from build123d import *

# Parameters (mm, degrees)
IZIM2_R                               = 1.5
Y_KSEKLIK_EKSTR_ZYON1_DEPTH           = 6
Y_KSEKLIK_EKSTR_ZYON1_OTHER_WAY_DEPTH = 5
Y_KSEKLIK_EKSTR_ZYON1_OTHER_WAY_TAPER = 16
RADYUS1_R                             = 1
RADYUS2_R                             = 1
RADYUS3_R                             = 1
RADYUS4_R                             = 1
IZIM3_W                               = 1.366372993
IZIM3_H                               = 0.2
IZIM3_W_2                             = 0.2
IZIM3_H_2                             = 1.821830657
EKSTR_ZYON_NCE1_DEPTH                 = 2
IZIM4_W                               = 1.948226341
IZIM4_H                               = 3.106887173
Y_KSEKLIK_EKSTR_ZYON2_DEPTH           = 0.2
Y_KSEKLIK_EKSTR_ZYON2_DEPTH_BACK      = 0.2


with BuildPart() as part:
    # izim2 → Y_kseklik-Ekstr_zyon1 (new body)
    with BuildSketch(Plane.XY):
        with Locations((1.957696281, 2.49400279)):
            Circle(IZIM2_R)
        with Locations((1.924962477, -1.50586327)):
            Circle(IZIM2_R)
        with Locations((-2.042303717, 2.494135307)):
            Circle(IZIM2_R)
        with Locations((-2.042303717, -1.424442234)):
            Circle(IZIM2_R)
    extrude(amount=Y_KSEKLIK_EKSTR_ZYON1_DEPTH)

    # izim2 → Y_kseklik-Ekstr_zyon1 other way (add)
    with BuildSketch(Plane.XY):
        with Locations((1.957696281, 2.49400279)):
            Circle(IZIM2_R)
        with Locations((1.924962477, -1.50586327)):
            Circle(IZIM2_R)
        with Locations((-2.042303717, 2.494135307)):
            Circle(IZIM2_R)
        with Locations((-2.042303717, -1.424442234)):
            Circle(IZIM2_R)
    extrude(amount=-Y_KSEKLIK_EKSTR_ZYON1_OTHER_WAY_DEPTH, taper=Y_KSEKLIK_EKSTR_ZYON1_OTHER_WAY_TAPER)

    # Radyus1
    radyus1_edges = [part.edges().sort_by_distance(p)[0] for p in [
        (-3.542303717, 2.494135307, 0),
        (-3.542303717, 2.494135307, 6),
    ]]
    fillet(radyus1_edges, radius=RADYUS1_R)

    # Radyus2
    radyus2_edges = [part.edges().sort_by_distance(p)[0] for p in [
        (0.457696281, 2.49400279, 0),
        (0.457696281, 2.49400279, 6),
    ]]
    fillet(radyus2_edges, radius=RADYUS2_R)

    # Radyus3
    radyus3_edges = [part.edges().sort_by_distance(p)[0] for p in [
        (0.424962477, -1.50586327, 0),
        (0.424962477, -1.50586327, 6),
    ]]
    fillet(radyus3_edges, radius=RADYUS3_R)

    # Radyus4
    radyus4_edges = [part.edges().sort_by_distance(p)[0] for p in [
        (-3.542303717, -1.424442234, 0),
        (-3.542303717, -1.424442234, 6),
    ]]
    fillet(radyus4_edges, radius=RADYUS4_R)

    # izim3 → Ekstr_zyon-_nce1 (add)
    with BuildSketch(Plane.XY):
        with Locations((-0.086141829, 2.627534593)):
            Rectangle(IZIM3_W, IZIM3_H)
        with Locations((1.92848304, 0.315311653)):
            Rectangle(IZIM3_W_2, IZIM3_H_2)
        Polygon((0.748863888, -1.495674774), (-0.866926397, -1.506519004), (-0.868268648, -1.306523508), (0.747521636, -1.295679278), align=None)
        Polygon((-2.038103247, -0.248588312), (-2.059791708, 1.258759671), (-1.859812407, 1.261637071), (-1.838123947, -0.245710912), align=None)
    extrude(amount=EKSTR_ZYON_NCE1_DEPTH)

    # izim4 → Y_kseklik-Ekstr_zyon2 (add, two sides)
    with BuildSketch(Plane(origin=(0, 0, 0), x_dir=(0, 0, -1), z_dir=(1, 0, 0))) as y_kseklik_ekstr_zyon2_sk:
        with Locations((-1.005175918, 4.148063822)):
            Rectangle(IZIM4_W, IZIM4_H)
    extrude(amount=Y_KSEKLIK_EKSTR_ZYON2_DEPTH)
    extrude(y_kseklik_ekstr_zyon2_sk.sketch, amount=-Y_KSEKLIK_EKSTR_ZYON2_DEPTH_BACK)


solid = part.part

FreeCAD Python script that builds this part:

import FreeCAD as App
import Part
import Sketcher

V = App.Vector
Q = App.Units.Quantity


def edges_at(feature, points):
    """Names of the edges that pass closest to the given points."""
    edges = feature.Shape.Edges
    near = lambda p: min(range(len(edges)), key=lambda i: edges[i].distToShape(Part.Vertex(*p))[0])
    return sorted({f"Edge{near(p) + 1}" for p in points})

doc = App.newDocument("Part")
body = doc.addObject("PartDesign::Body", "Body")
body.AllowCompound = True

# Sketch on XY plane
sketch1 = body.newObject("Sketcher::SketchObject", "Sketch")
sketch1.AttachmentSupport = (doc.getObject("XY_Plane"), [""])
sketch1.MapMode = "FlatFace"
sketch1.addGeometry(Part.Circle(V(2, 2.5, 0), V(0, 0, 1), 1.5), False)
sketch1.addGeometry(Part.Circle(V(1.9, -1.5, 0), V(0, 0, 1), 1.5), False)
sketch1.addGeometry(Part.Circle(V(-2, 2.5, 0), V(0, 0, 1), 1.5), False)
sketch1.addGeometry(Part.Circle(V(-2, -1.4, 0), V(0, 0, 1), 1.5), False)
sketch1.addConstraint(Sketcher.Constraint("Equal", 0, 1))
sketch1.addConstraint(Sketcher.Constraint("Equal", 1, 2))
sketch1.addConstraint(Sketcher.Constraint("Equal", 2, 3))
sketch1.addConstraint(Sketcher.Constraint("Vertical", 2, 3, 3, 3))
sketch1.addConstraint(Sketcher.Constraint("Diameter", 0, Q("3 mm")))
sketch1.addConstraint(Sketcher.Constraint("DistanceX", 2, 3, 0, 3, Q("4 mm")))
sketch1.addConstraint(Sketcher.Constraint("DistanceY", 1, 3, 2, 3, Q("3.999999 mm")))
sketch1.addConstraint(Sketcher.Constraint("DistanceY", 1, 3, 3, 3, Q("0.081421 mm")))
sketch1.addConstraint(Sketcher.Constraint("DistanceX", -1, 1, 0, 3, Q("1.957696 mm")))
sketch1.addConstraint(Sketcher.Constraint("DistanceY", -1, 1, 0, 3, Q("2.494003 mm")))
sketch1.addConstraint(Sketcher.Constraint("DistanceX", -1, 1, 1, 3, Q("1.924962 mm")))
sketch1.addConstraint(Sketcher.Constraint("DistanceY", 1, 3, -1, 1, Q("1.505863 mm")))
pad1 = body.newObject("PartDesign::Pad", "Pad")
pad1.Profile = sketch1
pad1.Length = 6

# Sketch on XY plane
sketch2 = body.newObject("Sketcher::SketchObject", "Sketch001")
sketch2.AttachmentSupport = (doc.getObject("XY_Plane"), [""])
sketch2.MapMode = "FlatFace"
sketch2.addGeometry(Part.Circle(V(2, 2.5, 0), V(0, 0, 1), 1.5), False)
sketch2.addGeometry(Part.Circle(V(1.9, -1.5, 0), V(0, 0, 1), 1.5), False)
sketch2.addGeometry(Part.Circle(V(-2, 2.5, 0), V(0, 0, 1), 1.5), False)
sketch2.addGeometry(Part.Circle(V(-2, -1.4, 0), V(0, 0, 1), 1.5), False)
sketch2.addConstraint(Sketcher.Constraint("Equal", 0, 1))
sketch2.addConstraint(Sketcher.Constraint("Equal", 1, 2))
sketch2.addConstraint(Sketcher.Constraint("Equal", 2, 3))
sketch2.addConstraint(Sketcher.Constraint("Vertical", 2, 3, 3, 3))
sketch2.addConstraint(Sketcher.Constraint("Diameter", 0, Q("3 mm")))
sketch2.addConstraint(Sketcher.Constraint("DistanceX", 2, 3, 0, 3, Q("4 mm")))
sketch2.addConstraint(Sketcher.Constraint("DistanceY", 1, 3, 2, 3, Q("3.999999 mm")))
sketch2.addConstraint(Sketcher.Constraint("DistanceY", 1, 3, 3, 3, Q("0.081421 mm")))
sketch2.addConstraint(Sketcher.Constraint("DistanceX", -1, 1, 0, 3, Q("1.957696 mm")))
sketch2.addConstraint(Sketcher.Constraint("DistanceY", -1, 1, 0, 3, Q("2.494003 mm")))
sketch2.addConstraint(Sketcher.Constraint("DistanceX", -1, 1, 1, 3, Q("1.924962 mm")))
sketch2.addConstraint(Sketcher.Constraint("DistanceY", 1, 3, -1, 1, Q("1.505863 mm")))
pad2 = body.newObject("PartDesign::Pad", "Pad001")
pad2.Profile = sketch2
pad2.Length = 5
pad2.Reversed = True
pad2.TaperAngle = -16
doc.recompute()

fillet = body.newObject("PartDesign::Fillet", "Fillet")
fillet.Base = (pad2, edges_at(pad2, [(-3.542, 2.494, 0), (-3.542, 2.494, 6)]))
fillet.Radius = 1
doc.recompute()

fillet2 = body.newObject("PartDesign::Fillet", "Fillet001")
fillet2.Base = (fillet, edges_at(fillet, [(0.458, 2.494, 0), (0.458, 2.494, 6)]))
fillet2.Radius = 1
doc.recompute()

fillet3 = body.newObject("PartDesign::Fillet", "Fillet002")
fillet3.Base = (fillet2, edges_at(fillet2, [(0.425, -1.506, 0), (0.425, -1.506, 6)]))
fillet3.Radius = 1
doc.recompute()

fillet4 = body.newObject("PartDesign::Fillet", "Fillet003")
fillet4.Base = (fillet3, edges_at(fillet3, [(-3.542, -1.424, 0), (-3.542, -1.424, 6)]))
fillet4.Radius = 1

# Sketch on XY plane
sketch3 = body.newObject("Sketcher::SketchObject", "Sketch002")
sketch3.AttachmentSupport = (doc.getObject("XY_Plane"), [""])
sketch3.MapMode = "FlatFace"
sketch3.addGeometry(Part.LineSegment(V(-0.77, 2.73, 0), V(-0.77, 2.53, 0)), False)
sketch3.addGeometry(Part.LineSegment(V(-0.77, 2.53, 0), V(0.6, 2.53, 0)), False)
sketch3.addGeometry(Part.LineSegment(V(0.6, 2.53, 0), V(0.6, 2.73, 0)), False)
sketch3.addGeometry(Part.LineSegment(V(0.6, 2.73, 0), V(-0.77, 2.73, 0)), False)
sketch3.addGeometry(Part.LineSegment(V(1.83, 1.23, 0), V(1.83, -0.6, 0)), False)
sketch3.addGeometry(Part.LineSegment(V(1.83, -0.6, 0), V(2.03, -0.6, 0)), False)
sketch3.addGeometry(Part.LineSegment(V(2.03, -0.6, 0), V(2.03, 1.23, 0)), False)
sketch3.addGeometry(Part.LineSegment(V(2.03, 1.23, 0), V(1.83, 1.23, 0)), False)
sketch3.addGeometry(Part.LineSegment(V(-0.87, -1.51, 0), V(0.75, -1.5, 0)), False)
sketch3.addGeometry(Part.LineSegment(V(0.75, -1.5, 0), V(0.75, -1.3, 0)), False)
sketch3.addGeometry(Part.LineSegment(V(0.75, -1.3, 0), V(-0.87, -1.31, 0)), False)
sketch3.addGeometry(Part.LineSegment(V(-0.87, -1.31, 0), V(-0.87, -1.51, 0)), False)
sketch3.addGeometry(Part.LineSegment(V(-2.06, 1.26, 0), V(-2.04, -0.25, 0)), False)
sketch3.addGeometry(Part.LineSegment(V(-2.04, -0.25, 0), V(-1.84, -0.25, 0)), False)
sketch3.addGeometry(Part.LineSegment(V(-1.84, -0.25, 0), V(-1.86, 1.26, 0)), False)
sketch3.addGeometry(Part.LineSegment(V(-1.86, 1.26, 0), V(-2.06, 1.26, 0)), False)
sketch3.addConstraint(Sketcher.Constraint("Coincident", 0, 2, 1, 1))
sketch3.addConstraint(Sketcher.Constraint("Coincident", 1, 2, 2, 1))
sketch3.addConstraint(Sketcher.Constraint("Coincident", 2, 2, 3, 1))
sketch3.addConstraint(Sketcher.Constraint("Coincident", 3, 2, 0, 1))
sketch3.addConstraint(Sketcher.Constraint("Coincident", 4, 2, 5, 1))
sketch3.addConstraint(Sketcher.Constraint("Coincident", 5, 2, 6, 1))
sketch3.addConstraint(Sketcher.Constraint("Coincident", 6, 2, 7, 1))
sketch3.addConstraint(Sketcher.Constraint("Coincident", 7, 2, 4, 1))
sketch3.addConstraint(Sketcher.Constraint("Coincident", 8, 2, 9, 1))
sketch3.addConstraint(Sketcher.Constraint("Coincident", 9, 2, 10, 1))
sketch3.addConstraint(Sketcher.Constraint("Coincident", 10, 2, 11, 1))
sketch3.addConstraint(Sketcher.Constraint("Coincident", 11, 2, 8, 1))
sketch3.addConstraint(Sketcher.Constraint("Coincident", 12, 2, 13, 1))
sketch3.addConstraint(Sketcher.Constraint("Coincident", 13, 2, 14, 1))
sketch3.addConstraint(Sketcher.Constraint("Coincident", 14, 2, 15, 1))
sketch3.addConstraint(Sketcher.Constraint("Coincident", 15, 2, 12, 1))
sketch3.addConstraint(Sketcher.Constraint("Vertical", 0))
sketch3.addConstraint(Sketcher.Constraint("Horizontal", 1))
sketch3.addConstraint(Sketcher.Constraint("Vertical", 2))
sketch3.addConstraint(Sketcher.Constraint("Horizontal", 3))
sketch3.addConstraint(Sketcher.Constraint("Vertical", 4))
sketch3.addConstraint(Sketcher.Constraint("Horizontal", 5))
sketch3.addConstraint(Sketcher.Constraint("Vertical", 6))
sketch3.addConstraint(Sketcher.Constraint("Horizontal", 7))
sketch3.addConstraint(Sketcher.Constraint("Perpendicular", 8, 9))
sketch3.addConstraint(Sketcher.Constraint("Perpendicular", 9, 10))
sketch3.addConstraint(Sketcher.Constraint("Perpendicular", 10, 11))
sketch3.addConstraint(Sketcher.Constraint("Perpendicular", 12, 13))
sketch3.addConstraint(Sketcher.Constraint("Perpendicular", 13, 14))
sketch3.addConstraint(Sketcher.Constraint("Perpendicular", 14, 15))
sketch3.addConstraint(Sketcher.Constraint("Equal", 7, 0))
sketch3.addConstraint(Sketcher.Constraint("Equal", 11, 13))
sketch3.addConstraint(Sketcher.Constraint("DistanceX", 5, 1, 5, 2, Q("0.2 mm")))
sketch3.addConstraint(Sketcher.Constraint("Distance", 9, Q("0.2 mm")))
sketch3.addConstraint(Sketcher.Constraint("DistanceY", 4, 2, 4, 1, Q("1.821831 mm")))
sketch3.addConstraint(Sketcher.Constraint("DistanceY", 8, 2, 7, 2, Q("2.721902 mm")))
sketch3.addConstraint(Sketcher.Constraint("DistanceX", 1, 1, 1, 2, Q("1.366373 mm")))
sketch3.addConstraint(Sketcher.Constraint("DistanceX", 0, 2, -1, 1, Q("0.769328 mm")))
sketch3.addConstraint(Sketcher.Constraint("DistanceX", -1, 1, 9, 2, Q("0.747522 mm")))
sketch3.addConstraint(Sketcher.Constraint("DistanceY", 9, 2, -1, 1, Q("1.295679 mm")))
sketch3.addConstraint(Sketcher.Constraint("DistanceX", 10, 2, -1, 1, Q("0.868269 mm")))
sketch3.addConstraint(Sketcher.Constraint("DistanceY", 11, 2, -1, 1, Q("1.506519 mm")))
sketch3.addConstraint(Sketcher.Constraint("DistanceY", 12, 2, -1, 1, Q("0.248588 mm")))
sketch3.addConstraint(Sketcher.Constraint("DistanceY", 13, 2, -1, 1, Q("0.245711 mm")))
sketch3.addConstraint(Sketcher.Constraint("DistanceX", 15, 2, -1, 1, Q("2.059792 mm")))
sketch3.addConstraint(Sketcher.Constraint("DistanceY", -1, 1, 15, 2, Q("1.25876 mm")))
sketch3.addConstraint(Sketcher.Constraint("DistanceX", 1, 2, 4, 2, Q("1.231438 mm")))
sketch3.addConstraint(Sketcher.Constraint("DistanceY", 4, 2, 1, 2, Q("3.123138 mm")))
pad3 = body.newObject("PartDesign::Pad", "Pad002")
pad3.Profile = sketch3
pad3.Length = 2

# Sketch on YZ plane
sketch4 = body.newObject("Sketcher::SketchObject", "Sketch003")
sketch4.AttachmentSupport = (doc.getObject("YZ_Plane"), [""])
sketch4.MapMode = "FlatFace"
sketch4.addGeometry(Part.LineSegment(V(5.7, 2, 0), V(2.6, 2, 0)), False)
sketch4.addGeometry(Part.LineSegment(V(2.6, 2, 0), V(2.6, 0, 0)), False)
sketch4.addGeometry(Part.LineSegment(V(2.6, 0, 0), V(5.7, 0, 0)), False)
sketch4.addGeometry(Part.LineSegment(V(5.7, 0, 0), V(5.7, 2, 0)), False)
sketch4.addConstraint(Sketcher.Constraint("Coincident", 0, 2, 1, 1))
sketch4.addConstraint(Sketcher.Constraint("Coincident", 1, 2, 2, 1))
sketch4.addConstraint(Sketcher.Constraint("Coincident", 2, 2, 3, 1))
sketch4.addConstraint(Sketcher.Constraint("Coincident", 3, 2, 0, 1))
sketch4.addConstraint(Sketcher.Constraint("Horizontal", 0))
sketch4.addConstraint(Sketcher.Constraint("Vertical", 1))
sketch4.addConstraint(Sketcher.Constraint("Horizontal", 2))
sketch4.addConstraint(Sketcher.Constraint("Vertical", 3))
sketch4.addConstraint(Sketcher.Constraint("DistanceX", 0, 2, 0, 1, Q("3.106887 mm")))
sketch4.addConstraint(Sketcher.Constraint("DistanceY", 1, 2, 1, 1, Q("1.948226 mm")))
sketch4.addConstraint(Sketcher.Constraint("DistanceX", -1, 1, 0, 2, Q("2.59462 mm")))
sketch4.addConstraint(Sketcher.Constraint("DistanceY", -1, 1, 0, 2, Q("1.979289 mm")))
pad4 = body.newObject("PartDesign::Pad", "Pad003")
pad4.Profile = sketch4
pad4.Type = "TwoLengths"
pad4.Length = 0.2
pad4.Length2 = 0.2

doc.recompute()
